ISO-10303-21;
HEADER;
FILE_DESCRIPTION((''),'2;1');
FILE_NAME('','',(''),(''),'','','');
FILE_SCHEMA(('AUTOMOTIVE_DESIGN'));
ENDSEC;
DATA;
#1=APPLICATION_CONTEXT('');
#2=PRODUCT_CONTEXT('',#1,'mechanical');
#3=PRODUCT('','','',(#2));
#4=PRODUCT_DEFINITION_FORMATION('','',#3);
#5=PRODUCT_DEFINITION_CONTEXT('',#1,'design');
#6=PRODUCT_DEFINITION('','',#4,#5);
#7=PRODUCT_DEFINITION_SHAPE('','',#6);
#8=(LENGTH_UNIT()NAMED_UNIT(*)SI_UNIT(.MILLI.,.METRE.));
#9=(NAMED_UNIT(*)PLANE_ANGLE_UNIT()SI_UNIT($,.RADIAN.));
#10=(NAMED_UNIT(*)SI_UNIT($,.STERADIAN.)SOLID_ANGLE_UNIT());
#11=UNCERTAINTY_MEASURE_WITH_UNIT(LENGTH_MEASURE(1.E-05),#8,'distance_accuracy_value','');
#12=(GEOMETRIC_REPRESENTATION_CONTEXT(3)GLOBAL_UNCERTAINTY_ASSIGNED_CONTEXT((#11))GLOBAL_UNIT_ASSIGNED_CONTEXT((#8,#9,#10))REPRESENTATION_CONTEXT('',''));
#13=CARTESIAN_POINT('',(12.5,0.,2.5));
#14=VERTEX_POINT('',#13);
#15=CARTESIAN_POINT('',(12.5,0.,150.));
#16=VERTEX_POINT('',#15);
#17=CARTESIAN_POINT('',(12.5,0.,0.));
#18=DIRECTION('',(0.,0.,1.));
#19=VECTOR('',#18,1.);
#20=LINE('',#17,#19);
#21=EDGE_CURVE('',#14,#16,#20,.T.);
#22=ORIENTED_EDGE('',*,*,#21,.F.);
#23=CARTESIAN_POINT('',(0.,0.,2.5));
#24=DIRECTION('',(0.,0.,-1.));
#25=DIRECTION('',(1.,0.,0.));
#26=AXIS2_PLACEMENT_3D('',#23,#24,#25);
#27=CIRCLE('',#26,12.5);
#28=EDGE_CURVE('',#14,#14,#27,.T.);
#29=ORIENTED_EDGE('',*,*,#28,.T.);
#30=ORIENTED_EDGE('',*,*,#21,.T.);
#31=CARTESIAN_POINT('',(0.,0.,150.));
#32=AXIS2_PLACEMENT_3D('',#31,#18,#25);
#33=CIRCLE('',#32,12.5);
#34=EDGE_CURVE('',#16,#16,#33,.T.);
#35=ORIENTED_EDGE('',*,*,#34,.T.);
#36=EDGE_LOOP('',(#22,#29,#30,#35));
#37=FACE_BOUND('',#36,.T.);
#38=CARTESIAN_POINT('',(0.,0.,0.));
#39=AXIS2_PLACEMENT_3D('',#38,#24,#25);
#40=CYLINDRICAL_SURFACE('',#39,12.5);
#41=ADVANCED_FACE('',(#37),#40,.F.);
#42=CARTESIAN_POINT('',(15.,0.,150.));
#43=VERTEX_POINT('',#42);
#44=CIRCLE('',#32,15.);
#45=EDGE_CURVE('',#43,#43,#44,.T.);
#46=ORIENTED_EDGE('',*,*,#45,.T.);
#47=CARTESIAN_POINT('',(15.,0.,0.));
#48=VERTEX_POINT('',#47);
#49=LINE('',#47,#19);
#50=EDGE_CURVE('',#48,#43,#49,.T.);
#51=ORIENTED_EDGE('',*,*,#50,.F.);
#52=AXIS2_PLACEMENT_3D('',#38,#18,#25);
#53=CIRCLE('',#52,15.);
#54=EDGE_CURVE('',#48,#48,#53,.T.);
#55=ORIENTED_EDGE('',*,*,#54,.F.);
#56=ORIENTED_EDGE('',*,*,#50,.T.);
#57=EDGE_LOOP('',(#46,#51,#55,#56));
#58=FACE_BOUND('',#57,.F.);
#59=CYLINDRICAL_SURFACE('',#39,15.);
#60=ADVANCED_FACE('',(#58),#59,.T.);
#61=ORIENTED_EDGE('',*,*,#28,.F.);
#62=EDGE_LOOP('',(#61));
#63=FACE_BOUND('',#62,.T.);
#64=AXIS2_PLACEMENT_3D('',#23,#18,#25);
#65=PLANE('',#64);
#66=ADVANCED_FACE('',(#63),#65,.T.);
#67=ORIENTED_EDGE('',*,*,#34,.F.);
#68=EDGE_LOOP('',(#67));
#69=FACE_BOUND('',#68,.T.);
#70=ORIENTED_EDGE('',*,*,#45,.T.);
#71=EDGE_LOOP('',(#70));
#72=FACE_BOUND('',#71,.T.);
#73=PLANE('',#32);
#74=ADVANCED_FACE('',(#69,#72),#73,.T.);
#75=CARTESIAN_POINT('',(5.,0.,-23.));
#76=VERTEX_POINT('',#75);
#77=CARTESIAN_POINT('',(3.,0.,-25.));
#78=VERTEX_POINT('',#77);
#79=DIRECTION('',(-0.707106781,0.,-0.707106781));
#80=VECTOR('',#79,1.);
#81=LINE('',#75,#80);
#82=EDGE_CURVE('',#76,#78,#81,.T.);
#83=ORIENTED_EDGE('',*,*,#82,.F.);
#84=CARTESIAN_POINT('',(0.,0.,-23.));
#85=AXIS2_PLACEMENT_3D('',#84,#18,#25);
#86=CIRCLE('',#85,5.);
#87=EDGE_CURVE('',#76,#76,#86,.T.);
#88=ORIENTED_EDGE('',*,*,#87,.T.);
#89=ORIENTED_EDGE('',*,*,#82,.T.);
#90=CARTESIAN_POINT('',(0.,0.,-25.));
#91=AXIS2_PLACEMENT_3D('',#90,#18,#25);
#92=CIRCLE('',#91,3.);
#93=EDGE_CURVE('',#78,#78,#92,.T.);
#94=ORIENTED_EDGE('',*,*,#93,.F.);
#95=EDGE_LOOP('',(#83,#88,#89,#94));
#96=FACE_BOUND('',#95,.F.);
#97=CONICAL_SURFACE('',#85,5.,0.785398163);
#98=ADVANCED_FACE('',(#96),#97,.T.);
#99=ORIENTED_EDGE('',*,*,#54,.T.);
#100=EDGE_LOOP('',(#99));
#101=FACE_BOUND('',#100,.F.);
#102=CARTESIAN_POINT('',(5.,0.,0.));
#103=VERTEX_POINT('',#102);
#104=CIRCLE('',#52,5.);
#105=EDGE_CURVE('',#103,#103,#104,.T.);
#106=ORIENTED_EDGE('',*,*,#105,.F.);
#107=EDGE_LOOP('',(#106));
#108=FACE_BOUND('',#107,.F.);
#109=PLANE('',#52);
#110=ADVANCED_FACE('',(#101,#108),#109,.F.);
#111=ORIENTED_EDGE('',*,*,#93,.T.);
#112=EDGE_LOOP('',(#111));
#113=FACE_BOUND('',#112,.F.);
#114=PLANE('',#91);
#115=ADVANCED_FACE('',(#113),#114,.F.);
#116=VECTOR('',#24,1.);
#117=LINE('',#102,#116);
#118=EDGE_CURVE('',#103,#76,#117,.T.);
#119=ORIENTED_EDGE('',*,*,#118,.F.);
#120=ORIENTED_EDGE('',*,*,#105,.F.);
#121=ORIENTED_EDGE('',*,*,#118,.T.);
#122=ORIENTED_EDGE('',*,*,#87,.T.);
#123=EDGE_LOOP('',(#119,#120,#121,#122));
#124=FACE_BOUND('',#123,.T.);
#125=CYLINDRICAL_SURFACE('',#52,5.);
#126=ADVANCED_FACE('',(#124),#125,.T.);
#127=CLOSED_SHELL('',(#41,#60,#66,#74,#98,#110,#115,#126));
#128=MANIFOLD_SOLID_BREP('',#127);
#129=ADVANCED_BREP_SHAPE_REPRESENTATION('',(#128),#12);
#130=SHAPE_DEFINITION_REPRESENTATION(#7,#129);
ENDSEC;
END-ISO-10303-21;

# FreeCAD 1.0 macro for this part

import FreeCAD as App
import Part
import Sketcher
from FreeCAD import Vector
Q = App.Units.Quantity


def edges_at(feature, points):
    """Names of the edges that pass closest to the given points."""
    edges = feature.Shape.Edges
    near = lambda p: min(range(len(edges)), key=lambda i: edges[i].distToShape(Part.Vertex(*p))[0])
    return sorted({f"Edge{near(p) + 1}" for p in points})


def faces_at(feature, points):
    """Names of the faces that lie closest to the given points."""
    faces = feature.Shape.Faces
    near = lambda p: min(range(len(faces)), key=lambda i: faces[i].distToShape(Part.Vertex(*p))[0])
    return sorted({f"Face{near(p) + 1}" for p in points})

doc = App.newDocument("Part")
params = doc.addObject("Spreadsheet::Sheet", "Params")
for row, (alias, value) in enumerate([
    ("sketch1_diameter", "30 mm"),
    ("pad1_length", "150 mm"),
    ("thickness_wall", "2.5 mm"),
    ("sketch2_diameter", "10 mm"),
    ("pad2_length", "25 mm"),
    ("chamfer_size", "2 mm"),
], start=1):
    params.set(f"A{row}", alias)
    params.set(f"B{row}", "=" + value)
    params.setAlias(f"B{row}", alias)

body = doc.addObject("PartDesign::Body", "Body")

# Sketch on XY plane
sketch1 = doc.addObject("Sketcher::SketchObject", "Sketch")
body.addObject(sketch1)
sketch1.AttachmentSupport = (doc.XY_Plane, [""])
sketch1.MapMode = "FlatFace"
sketch1.addGeometry(Part.Circle(Vector(0, 0, 0), Vector(0, 0, 1), 15), False)
sketch1.addConstraint(Sketcher.Constraint("Coincident", 0, 3, -1, 1))
sketch1.addConstraint(Sketcher.Constraint("Diameter", 0, Q("30 mm")))
sketch1.setExpression("Constraints[1]", "Params.sketch1_diameter")
pad1 = doc.addObject("PartDesign::Pad", "Pad")
body.addObject(pad1)
pad1.Profile = sketch1
pad1.setExpression("Length", "Params.pad1_length")
doc.recompute()

thickness = doc.addObject("PartDesign::Thickness", "Thickness")
body.addObject(thickness)
thickness.Base = (pad1, faces_at(pad1, [(0, 0, 150)]))
thickness.setExpression("Value", "Params.thickness_wall")
thickness.Reversed = True
thickness.Join = "Arc"

# Sketch on XY plane
sketch2 = doc.addObject("Sketcher::SketchObject", "Sketch001")
body.addObject(sketch2)
sketch2.AttachmentSupport = (doc.XY_Plane, [""])
sketch2.MapMode = "FlatFace"
sketch2.addGeometry(Part.Circle(Vector(0, 0, 0), Vector(0, 0, 1), 5), False)
sketch2.addConstraint(Sketcher.Constraint("Coincident", 0, 3, -1, 1))
sketch2.addConstraint(Sketcher.Constraint("Diameter", 0, Q("10 mm")))
sketch2.setExpression("Constraints[1]", "Params.sketch2_diameter")
pad2 = doc.addObject("PartDesign::Pad", "Pad001")
body.addObject(pad2)
pad2.Profile = sketch2
pad2.setExpression("Length", "Params.pad2_length")
pad2.Reversed = True
doc.recompute()

chamfer = doc.addObject("PartDesign::Chamfer", "Chamfer")
body.addObject(chamfer)
chamfer.Base = (pad2, edges_at(pad2, [(-5, 0, -25)]))
chamfer.setExpression("Size", "Params.chamfer_size")

doc.recompute()
